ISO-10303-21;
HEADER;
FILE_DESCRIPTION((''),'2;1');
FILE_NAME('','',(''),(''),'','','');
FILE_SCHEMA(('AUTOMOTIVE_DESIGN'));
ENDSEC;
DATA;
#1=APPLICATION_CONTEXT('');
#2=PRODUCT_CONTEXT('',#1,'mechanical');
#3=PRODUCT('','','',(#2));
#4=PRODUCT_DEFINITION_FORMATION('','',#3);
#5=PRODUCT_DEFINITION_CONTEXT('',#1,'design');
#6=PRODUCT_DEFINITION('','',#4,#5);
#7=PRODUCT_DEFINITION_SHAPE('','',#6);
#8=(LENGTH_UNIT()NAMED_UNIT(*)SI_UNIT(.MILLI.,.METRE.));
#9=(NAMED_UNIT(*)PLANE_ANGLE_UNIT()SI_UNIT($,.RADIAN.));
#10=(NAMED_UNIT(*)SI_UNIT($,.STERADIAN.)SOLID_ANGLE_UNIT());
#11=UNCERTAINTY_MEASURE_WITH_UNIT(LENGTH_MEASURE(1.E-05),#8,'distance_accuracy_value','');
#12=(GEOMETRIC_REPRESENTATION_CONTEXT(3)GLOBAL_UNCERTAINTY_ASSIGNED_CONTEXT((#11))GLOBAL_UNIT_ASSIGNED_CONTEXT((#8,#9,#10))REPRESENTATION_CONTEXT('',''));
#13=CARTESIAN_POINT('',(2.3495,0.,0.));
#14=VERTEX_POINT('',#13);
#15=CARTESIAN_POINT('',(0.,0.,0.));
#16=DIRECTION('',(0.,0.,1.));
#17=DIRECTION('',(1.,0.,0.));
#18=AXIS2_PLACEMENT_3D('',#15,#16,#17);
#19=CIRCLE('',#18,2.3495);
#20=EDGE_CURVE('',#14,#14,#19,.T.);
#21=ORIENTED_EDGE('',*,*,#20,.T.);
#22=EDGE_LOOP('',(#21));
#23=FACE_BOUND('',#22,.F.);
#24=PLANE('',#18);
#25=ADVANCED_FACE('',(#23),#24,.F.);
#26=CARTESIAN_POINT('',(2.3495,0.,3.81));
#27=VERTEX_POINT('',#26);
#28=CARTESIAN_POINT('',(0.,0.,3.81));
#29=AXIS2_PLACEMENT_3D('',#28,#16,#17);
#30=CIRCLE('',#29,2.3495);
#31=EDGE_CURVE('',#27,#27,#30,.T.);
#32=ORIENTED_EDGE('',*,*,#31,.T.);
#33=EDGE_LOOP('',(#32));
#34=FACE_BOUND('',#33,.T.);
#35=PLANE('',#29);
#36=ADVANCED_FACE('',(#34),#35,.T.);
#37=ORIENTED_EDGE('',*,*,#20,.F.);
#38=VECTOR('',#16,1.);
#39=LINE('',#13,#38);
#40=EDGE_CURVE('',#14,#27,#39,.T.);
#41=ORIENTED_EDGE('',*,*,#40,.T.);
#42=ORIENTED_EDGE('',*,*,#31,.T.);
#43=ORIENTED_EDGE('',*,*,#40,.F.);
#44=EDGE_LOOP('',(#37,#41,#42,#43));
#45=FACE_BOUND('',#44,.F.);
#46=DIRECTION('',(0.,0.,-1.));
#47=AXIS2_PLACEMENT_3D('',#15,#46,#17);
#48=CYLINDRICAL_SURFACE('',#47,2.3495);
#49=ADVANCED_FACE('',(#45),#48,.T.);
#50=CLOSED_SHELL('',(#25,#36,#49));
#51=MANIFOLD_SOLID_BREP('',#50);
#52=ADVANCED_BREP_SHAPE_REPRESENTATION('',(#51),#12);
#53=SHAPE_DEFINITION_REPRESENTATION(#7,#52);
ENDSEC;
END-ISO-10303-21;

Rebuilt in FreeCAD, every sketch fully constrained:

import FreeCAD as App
import Part
import Sketcher
Q = App.Units.Quantity

doc = App.newDocument("Part")
body = doc.addObject("PartDesign::Body", "Body")

sketch1 = body.newObject("Sketcher::SketchObject", "Sketch")
sketch1.AttachmentSupport = (doc.getObject("XY_Plane"), [""])
sketch1.MapMode = "FlatFace"
sketch1.addGeometry(Part.Circle(App.Vector(0, 0, 0), App.Vector(0, 0, 1), 2.3), False)
sketch1.addConstraint([
    Sketcher.Constraint("Coincident", 0, 3, -1, 1),
    Sketcher.Constraint("Diameter", 0, Q("0.185 in")),
])
pad1 = body.newObject("PartDesign::Pad", "Pad")
pad1.Profile = sketch1
pad1.Length = Q("0.15 in")

doc.recompute()
